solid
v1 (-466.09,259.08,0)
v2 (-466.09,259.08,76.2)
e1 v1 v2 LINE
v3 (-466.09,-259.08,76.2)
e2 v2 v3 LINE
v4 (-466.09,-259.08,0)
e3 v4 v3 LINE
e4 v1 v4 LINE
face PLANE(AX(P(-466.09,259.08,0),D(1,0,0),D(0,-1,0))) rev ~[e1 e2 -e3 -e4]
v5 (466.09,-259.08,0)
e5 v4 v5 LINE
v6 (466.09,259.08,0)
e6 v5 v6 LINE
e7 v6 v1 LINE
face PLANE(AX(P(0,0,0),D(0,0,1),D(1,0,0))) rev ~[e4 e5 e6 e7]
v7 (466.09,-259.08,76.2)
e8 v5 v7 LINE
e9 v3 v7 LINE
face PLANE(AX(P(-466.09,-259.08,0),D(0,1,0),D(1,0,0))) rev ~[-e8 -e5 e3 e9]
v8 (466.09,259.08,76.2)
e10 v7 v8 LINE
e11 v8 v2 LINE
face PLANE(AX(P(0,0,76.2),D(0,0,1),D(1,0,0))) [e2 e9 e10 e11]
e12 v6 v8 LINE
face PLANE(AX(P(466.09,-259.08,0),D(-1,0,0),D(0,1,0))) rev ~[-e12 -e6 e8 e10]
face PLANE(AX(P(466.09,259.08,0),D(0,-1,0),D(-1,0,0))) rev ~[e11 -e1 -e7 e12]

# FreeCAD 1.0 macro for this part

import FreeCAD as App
import Part
import Sketcher

V = App.Vector
Q = App.Units.Quantity


def add_polygon(sketch, points):
    """Adds a closed chain of lines whose ends are joined by coincident constraints."""
    first, n = sketch.GeometryCount, len(points)
    for a, b in zip(points, points[1:] + points[:1]):
        sketch.addGeometry(Part.LineSegment(App.Vector(*a, 0), App.Vector(*b, 0)), False)
    for i in range(n):
        sketch.addConstraint(Sketcher.Constraint("Coincident", first + i, 2, first + (i + 1) % n, 1))

doc = App.newDocument("Part")
params = doc.addObject("Spreadsheet::Sheet", "Params")
for row, (alias, value) in enumerate([
    ("sketch1_width", "36.7 in"),
    ("sketch1_height", "20.4 in"),
    ("pad1_length", "3 in"),
], start=1):
    params.set(f"A{row}", alias)
    params.set(f"B{row}", "=" + value)
    params.setAlias(f"B{row}", alias)

body = doc.addObject("PartDesign::Body", "Body")

# Sketch on XY plane
sketch1 = body.newObject("Sketcher::SketchObject", "Sketch")
sketch1.AttachmentSupport = (doc.getObject("XY_Plane"), [""])
sketch1.MapMode = "FlatFace"
add_polygon(sketch1, [(-466, 259), (-466, -259), (466, -259), (466, 259)])  # lines 0-3
sketch1.addConstraint(Sketcher.Constraint("Vertical", 0))
sketch1.addConstraint(Sketcher.Constraint("Horizontal", 1))
sketch1.addConstraint(Sketcher.Constraint("Vertical", 2))
sketch1.addConstraint(Sketcher.Constraint("Horizontal", 3))
sketch1.addConstraint(Sketcher.Constraint("Symmetric", 0, 2, 2, 2, -1, 1))
sketch1.addConstraint(Sketcher.Constraint("DistanceX", 1, 1, 1, 2, Q("36.7 in")))
sketch1.addConstraint(Sketcher.Constraint("DistanceY", 0, 2, 0, 1, Q("20.4 in")))
sketch1.setExpression("Constraints[9]", "Params.sketch1_width")
sketch1.setExpression("Constraints[10]", "Params.sketch1_height")
pad1 = body.newObject("PartDesign::Pad", "Pad")
pad1.Profile = sketch1
pad1.setExpression("Length", "Params.pad1_length")

doc.recompute()
